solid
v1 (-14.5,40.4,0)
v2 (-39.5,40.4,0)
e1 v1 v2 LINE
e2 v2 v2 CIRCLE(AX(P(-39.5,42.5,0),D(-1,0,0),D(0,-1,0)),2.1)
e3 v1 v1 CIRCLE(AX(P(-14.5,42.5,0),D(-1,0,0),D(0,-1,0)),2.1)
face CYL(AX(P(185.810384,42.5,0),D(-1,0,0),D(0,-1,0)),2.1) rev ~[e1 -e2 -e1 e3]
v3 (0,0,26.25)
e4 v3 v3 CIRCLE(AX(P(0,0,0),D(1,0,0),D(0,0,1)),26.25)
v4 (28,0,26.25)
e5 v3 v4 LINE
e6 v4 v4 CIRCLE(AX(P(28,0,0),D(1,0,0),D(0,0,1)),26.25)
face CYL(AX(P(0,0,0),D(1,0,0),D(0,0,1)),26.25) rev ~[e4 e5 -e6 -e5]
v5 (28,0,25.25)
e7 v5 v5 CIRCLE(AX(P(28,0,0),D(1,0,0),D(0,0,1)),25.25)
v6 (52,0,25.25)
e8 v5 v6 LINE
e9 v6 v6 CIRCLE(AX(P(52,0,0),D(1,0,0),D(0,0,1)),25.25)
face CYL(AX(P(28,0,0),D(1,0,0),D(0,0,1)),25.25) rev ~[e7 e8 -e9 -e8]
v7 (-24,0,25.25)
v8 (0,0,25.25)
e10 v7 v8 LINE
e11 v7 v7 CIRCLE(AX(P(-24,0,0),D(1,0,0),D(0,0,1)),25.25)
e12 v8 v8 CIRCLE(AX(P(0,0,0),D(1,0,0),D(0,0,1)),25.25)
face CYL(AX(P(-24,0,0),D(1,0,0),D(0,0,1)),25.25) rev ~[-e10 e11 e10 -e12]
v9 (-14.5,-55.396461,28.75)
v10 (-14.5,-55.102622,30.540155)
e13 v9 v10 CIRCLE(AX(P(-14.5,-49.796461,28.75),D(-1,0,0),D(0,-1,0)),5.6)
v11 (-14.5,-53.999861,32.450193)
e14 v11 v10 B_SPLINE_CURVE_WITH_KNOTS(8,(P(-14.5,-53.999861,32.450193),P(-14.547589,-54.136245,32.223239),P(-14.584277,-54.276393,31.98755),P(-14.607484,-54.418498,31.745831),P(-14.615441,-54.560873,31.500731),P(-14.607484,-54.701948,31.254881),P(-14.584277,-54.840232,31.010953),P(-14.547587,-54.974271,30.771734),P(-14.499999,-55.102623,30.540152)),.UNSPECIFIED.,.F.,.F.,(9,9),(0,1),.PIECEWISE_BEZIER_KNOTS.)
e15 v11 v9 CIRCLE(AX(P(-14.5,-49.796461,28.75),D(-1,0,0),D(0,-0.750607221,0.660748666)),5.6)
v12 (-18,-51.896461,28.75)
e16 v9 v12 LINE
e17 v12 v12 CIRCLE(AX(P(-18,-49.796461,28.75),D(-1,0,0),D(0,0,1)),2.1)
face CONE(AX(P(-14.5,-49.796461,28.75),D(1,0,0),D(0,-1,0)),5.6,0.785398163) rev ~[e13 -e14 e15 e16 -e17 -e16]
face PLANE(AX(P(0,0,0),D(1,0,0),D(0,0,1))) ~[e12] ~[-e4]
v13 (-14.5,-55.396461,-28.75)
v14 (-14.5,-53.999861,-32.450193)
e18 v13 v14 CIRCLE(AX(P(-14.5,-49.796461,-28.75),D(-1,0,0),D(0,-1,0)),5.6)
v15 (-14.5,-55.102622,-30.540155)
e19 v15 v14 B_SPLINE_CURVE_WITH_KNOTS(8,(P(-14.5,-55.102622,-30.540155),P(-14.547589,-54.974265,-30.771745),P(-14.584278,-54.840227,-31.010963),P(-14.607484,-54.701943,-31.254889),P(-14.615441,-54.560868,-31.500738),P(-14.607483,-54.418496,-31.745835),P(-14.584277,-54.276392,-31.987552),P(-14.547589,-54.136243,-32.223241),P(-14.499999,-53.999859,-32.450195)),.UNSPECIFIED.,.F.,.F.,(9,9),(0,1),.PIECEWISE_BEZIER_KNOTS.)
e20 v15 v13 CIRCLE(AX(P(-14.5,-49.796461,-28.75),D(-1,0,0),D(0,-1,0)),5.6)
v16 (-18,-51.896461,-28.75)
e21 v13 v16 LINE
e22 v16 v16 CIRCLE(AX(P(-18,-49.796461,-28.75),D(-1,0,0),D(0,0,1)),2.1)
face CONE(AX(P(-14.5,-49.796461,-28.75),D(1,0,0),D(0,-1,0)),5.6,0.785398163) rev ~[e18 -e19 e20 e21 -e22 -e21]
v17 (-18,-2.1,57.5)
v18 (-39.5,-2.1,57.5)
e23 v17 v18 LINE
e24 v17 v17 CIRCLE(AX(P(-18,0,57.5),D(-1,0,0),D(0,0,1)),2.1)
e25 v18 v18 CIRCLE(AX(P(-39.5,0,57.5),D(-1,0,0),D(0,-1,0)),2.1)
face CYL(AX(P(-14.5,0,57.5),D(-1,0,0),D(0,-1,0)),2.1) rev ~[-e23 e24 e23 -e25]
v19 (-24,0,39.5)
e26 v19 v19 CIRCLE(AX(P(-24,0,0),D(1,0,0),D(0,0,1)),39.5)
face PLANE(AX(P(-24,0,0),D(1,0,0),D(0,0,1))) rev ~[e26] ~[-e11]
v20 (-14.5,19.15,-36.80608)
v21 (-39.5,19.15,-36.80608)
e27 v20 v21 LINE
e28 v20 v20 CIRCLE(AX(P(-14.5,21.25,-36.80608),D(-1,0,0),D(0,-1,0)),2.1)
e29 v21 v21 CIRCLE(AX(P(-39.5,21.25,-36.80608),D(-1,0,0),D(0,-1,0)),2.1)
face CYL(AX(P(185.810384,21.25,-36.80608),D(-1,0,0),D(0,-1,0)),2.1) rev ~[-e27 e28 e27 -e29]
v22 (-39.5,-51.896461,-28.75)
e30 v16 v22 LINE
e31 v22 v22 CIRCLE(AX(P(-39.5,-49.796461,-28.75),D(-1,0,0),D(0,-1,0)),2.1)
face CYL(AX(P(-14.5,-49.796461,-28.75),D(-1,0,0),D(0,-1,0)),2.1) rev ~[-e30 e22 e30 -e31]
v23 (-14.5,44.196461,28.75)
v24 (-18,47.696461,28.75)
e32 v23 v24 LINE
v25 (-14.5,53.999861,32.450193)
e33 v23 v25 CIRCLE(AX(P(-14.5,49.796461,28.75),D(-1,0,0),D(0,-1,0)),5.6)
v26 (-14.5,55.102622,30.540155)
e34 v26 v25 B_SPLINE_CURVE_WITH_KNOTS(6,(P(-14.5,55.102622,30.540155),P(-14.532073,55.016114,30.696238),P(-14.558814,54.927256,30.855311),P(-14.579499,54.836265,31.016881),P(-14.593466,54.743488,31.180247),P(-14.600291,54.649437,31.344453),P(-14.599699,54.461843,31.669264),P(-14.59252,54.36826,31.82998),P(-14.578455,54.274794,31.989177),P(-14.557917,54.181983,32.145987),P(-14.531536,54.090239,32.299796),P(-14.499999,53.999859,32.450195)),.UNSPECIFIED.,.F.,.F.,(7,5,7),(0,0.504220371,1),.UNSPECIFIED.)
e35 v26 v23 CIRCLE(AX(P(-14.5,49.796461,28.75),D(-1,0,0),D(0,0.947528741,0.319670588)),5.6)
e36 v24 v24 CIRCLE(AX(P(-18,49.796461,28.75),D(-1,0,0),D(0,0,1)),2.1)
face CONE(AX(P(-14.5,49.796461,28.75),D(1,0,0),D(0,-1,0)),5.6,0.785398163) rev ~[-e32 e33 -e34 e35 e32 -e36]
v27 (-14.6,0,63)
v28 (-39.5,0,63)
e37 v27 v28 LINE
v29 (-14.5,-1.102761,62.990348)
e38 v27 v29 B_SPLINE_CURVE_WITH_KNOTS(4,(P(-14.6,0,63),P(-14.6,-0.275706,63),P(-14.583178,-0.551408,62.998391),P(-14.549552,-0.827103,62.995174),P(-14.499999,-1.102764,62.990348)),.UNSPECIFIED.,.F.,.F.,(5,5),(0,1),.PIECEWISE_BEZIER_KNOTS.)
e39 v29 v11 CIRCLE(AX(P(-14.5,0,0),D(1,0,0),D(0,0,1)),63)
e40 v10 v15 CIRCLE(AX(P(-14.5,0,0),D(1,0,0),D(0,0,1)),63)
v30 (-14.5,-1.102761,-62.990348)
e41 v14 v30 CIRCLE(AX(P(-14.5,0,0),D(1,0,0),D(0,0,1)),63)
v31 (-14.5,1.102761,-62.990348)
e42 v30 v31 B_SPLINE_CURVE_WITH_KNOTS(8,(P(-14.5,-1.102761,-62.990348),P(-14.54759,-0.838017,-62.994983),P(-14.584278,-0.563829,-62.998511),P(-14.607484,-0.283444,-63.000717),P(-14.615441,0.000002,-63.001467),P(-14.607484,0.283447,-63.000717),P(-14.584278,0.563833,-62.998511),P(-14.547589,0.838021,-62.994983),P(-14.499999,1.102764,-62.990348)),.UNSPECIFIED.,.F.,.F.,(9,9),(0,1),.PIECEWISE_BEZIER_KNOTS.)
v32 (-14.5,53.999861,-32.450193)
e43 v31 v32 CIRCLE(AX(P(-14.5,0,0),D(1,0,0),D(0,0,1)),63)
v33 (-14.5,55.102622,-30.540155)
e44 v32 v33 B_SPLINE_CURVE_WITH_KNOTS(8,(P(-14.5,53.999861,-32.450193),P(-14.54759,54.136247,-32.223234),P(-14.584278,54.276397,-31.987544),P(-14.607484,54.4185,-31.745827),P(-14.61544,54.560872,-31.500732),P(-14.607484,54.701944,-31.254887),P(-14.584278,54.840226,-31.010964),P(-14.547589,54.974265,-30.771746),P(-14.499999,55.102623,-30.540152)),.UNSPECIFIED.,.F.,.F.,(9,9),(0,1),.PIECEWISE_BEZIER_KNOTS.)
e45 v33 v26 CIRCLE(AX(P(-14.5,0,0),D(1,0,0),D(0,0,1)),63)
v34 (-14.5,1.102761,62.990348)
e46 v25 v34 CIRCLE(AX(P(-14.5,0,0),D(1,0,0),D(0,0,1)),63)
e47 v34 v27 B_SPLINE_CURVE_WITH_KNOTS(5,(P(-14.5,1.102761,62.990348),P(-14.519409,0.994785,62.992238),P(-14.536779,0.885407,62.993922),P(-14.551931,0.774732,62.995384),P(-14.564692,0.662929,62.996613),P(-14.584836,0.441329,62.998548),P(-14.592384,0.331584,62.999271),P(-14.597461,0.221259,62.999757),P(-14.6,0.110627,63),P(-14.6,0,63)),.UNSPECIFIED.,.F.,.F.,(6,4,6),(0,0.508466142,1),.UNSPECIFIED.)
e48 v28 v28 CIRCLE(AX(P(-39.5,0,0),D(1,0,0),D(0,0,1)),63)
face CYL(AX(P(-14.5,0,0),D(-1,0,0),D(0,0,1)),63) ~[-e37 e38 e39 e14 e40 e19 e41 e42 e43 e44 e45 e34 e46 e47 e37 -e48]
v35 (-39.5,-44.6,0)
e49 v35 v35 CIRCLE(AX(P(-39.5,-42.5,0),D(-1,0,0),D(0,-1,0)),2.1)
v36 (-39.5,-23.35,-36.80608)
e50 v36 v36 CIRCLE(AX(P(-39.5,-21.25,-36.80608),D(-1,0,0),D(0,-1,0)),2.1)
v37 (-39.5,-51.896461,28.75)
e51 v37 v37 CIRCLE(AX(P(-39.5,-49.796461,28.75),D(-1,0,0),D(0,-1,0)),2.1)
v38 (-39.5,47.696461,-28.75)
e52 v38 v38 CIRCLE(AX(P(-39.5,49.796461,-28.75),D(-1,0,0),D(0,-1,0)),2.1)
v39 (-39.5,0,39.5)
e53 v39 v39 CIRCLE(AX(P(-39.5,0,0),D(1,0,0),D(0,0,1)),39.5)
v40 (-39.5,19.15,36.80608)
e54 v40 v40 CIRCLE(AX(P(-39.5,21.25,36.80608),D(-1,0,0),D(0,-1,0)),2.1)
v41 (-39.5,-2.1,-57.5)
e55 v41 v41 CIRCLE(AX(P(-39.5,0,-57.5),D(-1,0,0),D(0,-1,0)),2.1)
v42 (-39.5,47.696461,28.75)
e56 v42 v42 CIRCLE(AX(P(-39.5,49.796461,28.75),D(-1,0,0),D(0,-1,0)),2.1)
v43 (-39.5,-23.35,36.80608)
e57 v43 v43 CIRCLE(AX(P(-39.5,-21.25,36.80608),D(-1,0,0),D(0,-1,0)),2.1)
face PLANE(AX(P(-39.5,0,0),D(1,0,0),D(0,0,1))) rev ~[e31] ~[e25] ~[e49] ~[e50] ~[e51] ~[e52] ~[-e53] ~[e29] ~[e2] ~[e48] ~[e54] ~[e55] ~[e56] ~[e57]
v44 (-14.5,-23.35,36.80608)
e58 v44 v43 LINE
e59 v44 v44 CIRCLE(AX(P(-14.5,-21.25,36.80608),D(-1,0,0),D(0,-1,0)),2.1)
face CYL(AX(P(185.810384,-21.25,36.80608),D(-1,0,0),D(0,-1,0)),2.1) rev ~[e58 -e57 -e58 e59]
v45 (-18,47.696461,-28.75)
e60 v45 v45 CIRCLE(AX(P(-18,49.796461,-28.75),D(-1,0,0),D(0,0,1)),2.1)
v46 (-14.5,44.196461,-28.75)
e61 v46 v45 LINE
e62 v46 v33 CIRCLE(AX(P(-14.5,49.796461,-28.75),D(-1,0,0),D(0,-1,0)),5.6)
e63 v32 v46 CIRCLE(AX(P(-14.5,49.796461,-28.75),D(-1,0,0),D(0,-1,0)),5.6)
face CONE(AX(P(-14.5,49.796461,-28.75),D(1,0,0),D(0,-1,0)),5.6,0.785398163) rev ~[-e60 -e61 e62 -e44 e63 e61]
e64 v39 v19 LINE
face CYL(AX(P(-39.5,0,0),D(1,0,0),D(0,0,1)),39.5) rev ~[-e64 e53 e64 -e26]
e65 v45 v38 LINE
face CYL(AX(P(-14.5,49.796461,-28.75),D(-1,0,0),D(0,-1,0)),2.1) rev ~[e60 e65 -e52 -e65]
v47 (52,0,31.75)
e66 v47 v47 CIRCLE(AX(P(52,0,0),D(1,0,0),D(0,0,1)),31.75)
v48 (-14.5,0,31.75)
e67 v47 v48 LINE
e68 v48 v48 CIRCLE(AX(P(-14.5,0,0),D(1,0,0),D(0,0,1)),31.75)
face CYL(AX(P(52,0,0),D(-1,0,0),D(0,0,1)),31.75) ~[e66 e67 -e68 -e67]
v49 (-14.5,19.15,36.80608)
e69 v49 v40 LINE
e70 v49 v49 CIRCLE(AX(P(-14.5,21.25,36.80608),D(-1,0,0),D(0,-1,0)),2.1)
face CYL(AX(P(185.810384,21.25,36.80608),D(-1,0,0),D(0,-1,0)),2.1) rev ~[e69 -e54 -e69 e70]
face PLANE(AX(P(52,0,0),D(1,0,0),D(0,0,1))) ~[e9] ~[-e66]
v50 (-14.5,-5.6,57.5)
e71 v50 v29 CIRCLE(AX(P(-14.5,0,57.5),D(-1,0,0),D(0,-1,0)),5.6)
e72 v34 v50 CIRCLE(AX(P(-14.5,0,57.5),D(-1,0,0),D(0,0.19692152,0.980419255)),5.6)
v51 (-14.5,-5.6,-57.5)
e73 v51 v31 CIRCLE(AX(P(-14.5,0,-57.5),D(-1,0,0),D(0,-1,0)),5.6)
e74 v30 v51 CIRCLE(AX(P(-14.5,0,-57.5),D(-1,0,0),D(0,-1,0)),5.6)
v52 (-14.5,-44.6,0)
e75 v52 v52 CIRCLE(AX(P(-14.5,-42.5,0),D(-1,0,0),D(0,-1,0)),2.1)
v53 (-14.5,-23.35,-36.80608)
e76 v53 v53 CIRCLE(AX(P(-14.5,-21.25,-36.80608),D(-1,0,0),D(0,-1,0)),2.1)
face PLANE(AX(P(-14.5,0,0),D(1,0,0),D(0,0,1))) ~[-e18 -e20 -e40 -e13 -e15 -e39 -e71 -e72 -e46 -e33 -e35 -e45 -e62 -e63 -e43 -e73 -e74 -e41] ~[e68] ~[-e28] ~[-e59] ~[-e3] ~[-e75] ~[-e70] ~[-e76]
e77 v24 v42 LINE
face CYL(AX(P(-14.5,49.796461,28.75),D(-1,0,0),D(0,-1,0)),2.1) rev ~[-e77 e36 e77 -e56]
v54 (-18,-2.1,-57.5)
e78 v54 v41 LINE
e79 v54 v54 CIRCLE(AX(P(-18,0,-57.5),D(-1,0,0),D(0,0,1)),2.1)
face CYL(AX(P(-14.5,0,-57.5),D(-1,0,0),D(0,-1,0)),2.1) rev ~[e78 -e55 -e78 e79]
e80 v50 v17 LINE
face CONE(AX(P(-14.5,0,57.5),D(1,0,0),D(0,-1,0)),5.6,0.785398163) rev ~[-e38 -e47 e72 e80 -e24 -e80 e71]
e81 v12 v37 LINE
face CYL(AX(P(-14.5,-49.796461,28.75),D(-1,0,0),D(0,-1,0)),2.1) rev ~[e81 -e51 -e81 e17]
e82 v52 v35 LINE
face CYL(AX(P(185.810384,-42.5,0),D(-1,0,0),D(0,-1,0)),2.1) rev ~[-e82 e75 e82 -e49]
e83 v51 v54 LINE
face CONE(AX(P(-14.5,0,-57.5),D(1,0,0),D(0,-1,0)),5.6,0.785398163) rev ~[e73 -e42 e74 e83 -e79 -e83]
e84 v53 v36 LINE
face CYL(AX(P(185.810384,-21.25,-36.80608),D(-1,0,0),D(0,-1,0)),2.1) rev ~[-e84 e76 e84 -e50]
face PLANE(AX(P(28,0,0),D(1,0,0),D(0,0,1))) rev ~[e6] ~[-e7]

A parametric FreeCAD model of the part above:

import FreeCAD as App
import Part
import Sketcher
from FreeCAD import Vector
Q = App.Units.Quantity


def add_polygon(sketch, points):
    """Adds a closed chain of lines whose ends are joined by coincident constraints."""
    first, n = sketch.GeometryCount, len(points)
    for a, b in zip(points, points[1:] + points[:1]):
        sketch.addGeometry(Part.LineSegment(App.Vector(*a, 0), App.Vector(*b, 0)), False)
    for i in range(n):
        sketch.addConstraint(Sketcher.Constraint("Coincident", first + i, 2, first + (i + 1) % n, 1))

doc = App.newDocument("Part")
body = doc.addObject("PartDesign::Body", "Body")

sketch1 = body.newObject("Sketcher::SketchObject", "Sketch")
sketch1.AttachmentSupport = (doc.getObject("XZ_Plane"), [""])
sketch1.MapMode = "FlatFace"
add_polygon(sketch1, [(28, 25.25), (52, 25.25), (52, 31.75), (-14.5, 31.75), (-14.5, 63), (-39.5, 63), (-39.5, 39.5), (-24, 39.5), (-24, 25.25), (0, 25.25), (0, 26.25), (28, 26.25)])
sketch1.addConstraint([
    Sketcher.Constraint("Horizontal", 0),
    Sketcher.Constraint("Vertical", 1),
    Sketcher.Constraint("Horizontal", 2),
    Sketcher.Constraint("Vertical", 3),
    Sketcher.Constraint("Horizontal", 4),
    Sketcher.Constraint("Vertical", 5),
    Sketcher.Constraint("Horizontal", 6),
    Sketcher.Constraint("Vertical", 7),
    Sketcher.Constraint("Horizontal", 8),
    Sketcher.Constraint("Vertical", 9),
    Sketcher.Constraint("Horizontal", 10),
    Sketcher.Constraint("Vertical", 11),
    Sketcher.Constraint("PointOnObject", 8, 2, -2),
    Sketcher.Constraint("Horizontal", 0, 2, 7, 2),
    Sketcher.Constraint("Equal", 0, 8),
    Sketcher.Constraint("DistanceX", 0, 1, 0, 2, Q("24 mm")),
    Sketcher.Constraint("DistanceX", 4, 2, 4, 1, Q("25 mm")),
    Sketcher.Constraint("DistanceX", 10, 1, 10, 2, Q("28 mm")),
    Sketcher.Constraint("DistanceY", 9, 1, 9, 2, Q("1 mm")),
    Sketcher.Constraint("DistanceX", 2, 2, 2, 1, Q("66.5 mm")),
    Sketcher.Constraint("DistanceY", 1, 1, 1, 2, Q("6.5 mm")),
    Sketcher.Constraint("DistanceY", 5, 2, 5, 1, Q("23.5 mm")),
    Sketcher.Constraint("DistanceY", -1, 1, 3, 2, Q("63 mm")),
    Sketcher.Constraint("DistanceY", 3, 1, 3, 2, Q("31.25 mm")),
])
revolution = body.newObject("PartDesign::Revolution", "Revolution")
revolution.Profile = sketch1
revolution.ReferenceAxis = (sketch1, ["H_Axis"])
revolution.Angle = 360

sketch2 = body.newObject("Sketcher::SketchObject", "Sketch001")
sketch2.AttachmentSupport = (doc.getObject("YZ_Plane"), [""])
sketch2.MapMode = "FlatFace"
sketch2.AttachmentOffset = App.Placement(Vector(0, 0, -14.5), App.Rotation())
sketch2.addGeometry([
    Part.Circle(Vector(0, 57.5, 0), Vector(0, 0, 1), 2.1),
    Part.Circle(Vector(49.796461, 28.75, 0), Vector(0, 0, 1), 2.1),
    Part.Circle(Vector(49.796461, -28.75, 0), Vector(0, 0, 1), 2.1),
    Part.Circle(Vector(-49.796461, -28.75, 0), Vector(0, 0, 1), 2.1),
    Part.Circle(Vector(0, -57.5, 0), Vector(0, 0, 1), 2.1),
    Part.Circle(Vector(-49.796461, 28.75, 0), Vector(0, 0, 1), 2.1),
], False)
sketch2.addConstraint([
    Sketcher.Constraint("Equal", 0, 1),
    Sketcher.Constraint("Equal", 1, 2),
    Sketcher.Constraint("Equal", 2, 3),
    Sketcher.Constraint("Equal", 3, 4),
    Sketcher.Constraint("Equal", 4, 5),
    Sketcher.Constraint("Symmetric", 1, 3, 3, 3, -1, 1),
    Sketcher.Constraint("Symmetric", 0, 3, 4, 3, -1, 1),
    Sketcher.Constraint("Symmetric", 2, 3, 5, 3, -1, 1),
    Sketcher.Constraint("Symmetric", 2, 3, 3, 3, -2),
    Sketcher.Constraint("PointOnObject", 0, 3, -2),
    Sketcher.Constraint("Diameter", 0, Q("4.2 mm")),
    Sketcher.Constraint("DistanceY", 4, 3, 0, 3, Q("115 mm")),
    Sketcher.Constraint("DistanceY", 2, 3, 1, 3, Q("57.5 mm")),
    Sketcher.Constraint("DistanceX", -1, 1, 1, 3, Q("49.796461 mm")),
])
doc.recompute()
hole = body.newObject("PartDesign::Hole", "Hole")
hole.Profile = sketch2
hole.ThreadType = "None"
hole.Diameter = 4.2
hole.DepthType = "ThroughAll"
hole.HoleCutType = "Countersink"
hole.HoleCutDiameter = 11.2
hole.HoleCutCountersinkAngle = 90

sketch3 = body.newObject("Sketcher::SketchObject", "Sketch002")
sketch3.AttachmentSupport = (doc.getObject("YZ_Plane"), [""])
sketch3.MapMode = "FlatFace"
sketch3.AttachmentOffset = App.Placement(Vector(0, 0, -14.5), App.Rotation())
sketch3.addGeometry([
    Part.Circle(Vector(-21.25, 36.80608, 0), Vector(0, 0, 1), 2.1),
    Part.Circle(Vector(21.25, 36.80608, 0), Vector(0, 0, 1), 2.1),
    Part.Circle(Vector(42.5, 0, 0), Vector(0, 0, 1), 2.1),
    Part.Circle(Vector(21.25, -36.80608, 0), Vector(0, 0, 1), 2.1),
    Part.Circle(Vector(-21.25, -36.80608, 0), Vector(0, 0, 1), 2.1),
    Part.Circle(Vector(-42.5, 0, 0), Vector(0, 0, 1), 2.1),
], False)
sketch3.addConstraint([
    Sketcher.Constraint("Equal", 0, 1),
    Sketcher.Constraint("Equal", 1, 2),
    Sketcher.Constraint("Equal", 2, 3),
    Sketcher.Constraint("Equal", 3, 4),
    Sketcher.Constraint("Equal", 4, 5),
    Sketcher.Constraint("Symmetric", 0, 3, 3, 3, -1, 1),
    Sketcher.Constraint("Symmetric", 1, 3, 4, 3, -1, 1),
    Sketcher.Constraint("Symmetric", 2, 3, 5, 3, -1, 1),
    Sketcher.Constraint("Symmetric", 0, 3, 1, 3, -2),
    Sketcher.Constraint("PointOnObject", 2, 3, -1),
    Sketcher.Constraint("Diameter", 0, Q("4.2 mm")),
    Sketcher.Constraint("DistanceX", 5, 3, 2, 3, Q("85 mm")),
    Sketcher.Constraint("DistanceX", 0, 3, 1, 3, Q("42.5 mm")),
    Sketcher.Constraint("DistanceY", -1, 1, 0, 3, Q("36.80608 mm")),
])
doc.recompute()
hole2 = body.newObject("PartDesign::Hole", "Hole001")
hole2.Profile = sketch3
hole2.ThreadType = "None"
hole2.Diameter = 4.2
hole2.DepthType = "ThroughAll"

doc.recompute()
